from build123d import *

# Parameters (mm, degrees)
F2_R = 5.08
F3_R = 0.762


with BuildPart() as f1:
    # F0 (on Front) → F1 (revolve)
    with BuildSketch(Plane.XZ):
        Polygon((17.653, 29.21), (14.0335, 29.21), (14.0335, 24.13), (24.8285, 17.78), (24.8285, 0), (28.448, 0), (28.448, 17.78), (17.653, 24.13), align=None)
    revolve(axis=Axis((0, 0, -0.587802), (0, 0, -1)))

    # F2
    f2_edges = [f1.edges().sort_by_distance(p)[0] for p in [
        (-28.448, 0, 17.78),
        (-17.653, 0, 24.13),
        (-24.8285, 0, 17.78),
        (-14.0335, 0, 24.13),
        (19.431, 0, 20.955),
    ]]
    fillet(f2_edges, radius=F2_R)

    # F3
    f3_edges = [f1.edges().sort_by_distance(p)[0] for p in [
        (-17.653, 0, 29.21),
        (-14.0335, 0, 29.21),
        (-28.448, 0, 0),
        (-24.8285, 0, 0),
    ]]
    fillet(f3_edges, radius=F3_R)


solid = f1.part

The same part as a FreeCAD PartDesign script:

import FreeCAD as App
import Part
import Sketcher
from FreeCAD import Vector
Q = App.Units.Quantity


def edges_at(feature, points):
    """Names of the edges that pass closest to the given points."""
    edges = feature.Shape.Edges
    near = lambda p: min(range(len(edges)), key=lambda i: edges[i].distToShape(Part.Vertex(*p))[0])
    return sorted({f"Edge{near(p) + 1}" for p in points})


def add_polygon(sketch, points):
    """Adds a closed chain of lines whose ends are joined by coincident constraints."""
    first, n = sketch.GeometryCount, len(points)
    for a, b in zip(points, points[1:] + points[:1]):
        sketch.addGeometry(Part.LineSegment(App.Vector(*a, 0), App.Vector(*b, 0)), False)
    for i in range(n):
        sketch.addConstraint(Sketcher.Constraint("Coincident", first + i, 2, first + (i + 1) % n, 1))

doc = App.newDocument("Part")
params = doc.addObject("Spreadsheet::Sheet", "Params")
for row, (alias, value) in enumerate([
    ("sketch1_height", "0.2 in"),
    ("sketch1_height2", "0.7 in"),
    ("revolution_angle", "360 deg"),
    ("fillet_radius", "0.2 in"),
    ("fillet2_radius", "0.03 in"),
], start=1):
    params.set(f"A{row}", alias)
    params.set(f"B{row}", "=" + value)
    params.setAlias(f"B{row}", alias)

body = doc.addObject("PartDesign::Body", "Body")

# Sketch on XZ plane
sketch1 = body.newObject("Sketcher::SketchObject", "Sketch")
sketch1.AttachmentSupport = (doc.getObject("XZ_Plane"), [""])
sketch1.MapMode = "FlatFace"
add_polygon(sketch1, [(17.7, 29.2), (14, 29.2), (14, 24.1), (24.8, 17.8), (24.8, 0), (28.4, 0), (28.4, 17.8), (17.7, 24.1)])  # lines 0-7
sketch1.addConstraint(Sketcher.Constraint("Horizontal", 0))
sketch1.addConstraint(Sketcher.Constraint("Vertical", 1))
sketch1.addConstraint(Sketcher.Constraint("Vertical", 3))
sketch1.addConstraint(Sketcher.Constraint("Horizontal", 4))
sketch1.addConstraint(Sketcher.Constraint("Vertical", 5))
sketch1.addConstraint(Sketcher.Constraint("Vertical", 7))
sketch1.addConstraint(Sketcher.Constraint("PointOnObject", 3, 2, -1))
sketch1.addConstraint(Sketcher.Constraint("Parallel", 2, 6))
sketch1.addConstraint(Sketcher.Constraint("Horizontal", 2, 2, 5, 2))
sketch1.addConstraint(Sketcher.Constraint("Horizontal", 1, 2, 6, 2))
sketch1.addConstraint(Sketcher.Constraint("DistanceY", 1, 2, 1, 1, Q("0.2 in")))
sketch1.addConstraint(Sketcher.Constraint("DistanceY", 3, 2, 3, 1, Q("0.7 in")))
sketch1.addConstraint(Sketcher.Constraint("DistanceY", -1, 1, 0, 2, Q("1.15 in")))
sketch1.addConstraint(Sketcher.Constraint("DistanceX", -1, 1, 4, 2, Q("1.12 in")))
sketch1.addConstraint(Sketcher.Constraint("DistanceX", 0, 2, 0, 1, Q("0.1425 in")))
sketch1.addConstraint(Sketcher.Constraint("DistanceX", -1, 1, 6, 2, Q("0.695 in")))
sketch1.setExpression("Constraints[18]", "Params.sketch1_height")
sketch1.setExpression("Constraints[19]", "Params.sketch1_height2")
revolution = body.newObject("PartDesign::Revolution", "Revolution")
revolution.Profile = sketch1
revolution.ReferenceAxis = (sketch1, ["V_Axis"])
revolution.setExpression("Angle", "Params.revolution_angle")
doc.recompute()

fillet = body.newObject("PartDesign::Fillet", "Fillet")
fillet.Base = (revolution, edges_at(revolution, [
    (-28.448, 0, 17.78),
    (-17.653, 0, 24.13),
    (-24.828, 0, 17.78),
    (-14.034, 0, 24.13),
    (19.431, 0, 20.955),
]))
fillet.setExpression("Radius", "Params.fillet_radius")
doc.recompute()

fillet2 = body.newObject("PartDesign::Fillet", "Fillet001")
fillet2.Base = (fillet, edges_at(fillet, [
    (-17.653, 0, 29.21),
    (-14.034, 0, 29.21),
    (-28.448, 0, 0),
    (-24.828, 0, 0),
]))
fillet2.setExpression("Radius", "Params.fillet2_radius")

doc.recompute()
